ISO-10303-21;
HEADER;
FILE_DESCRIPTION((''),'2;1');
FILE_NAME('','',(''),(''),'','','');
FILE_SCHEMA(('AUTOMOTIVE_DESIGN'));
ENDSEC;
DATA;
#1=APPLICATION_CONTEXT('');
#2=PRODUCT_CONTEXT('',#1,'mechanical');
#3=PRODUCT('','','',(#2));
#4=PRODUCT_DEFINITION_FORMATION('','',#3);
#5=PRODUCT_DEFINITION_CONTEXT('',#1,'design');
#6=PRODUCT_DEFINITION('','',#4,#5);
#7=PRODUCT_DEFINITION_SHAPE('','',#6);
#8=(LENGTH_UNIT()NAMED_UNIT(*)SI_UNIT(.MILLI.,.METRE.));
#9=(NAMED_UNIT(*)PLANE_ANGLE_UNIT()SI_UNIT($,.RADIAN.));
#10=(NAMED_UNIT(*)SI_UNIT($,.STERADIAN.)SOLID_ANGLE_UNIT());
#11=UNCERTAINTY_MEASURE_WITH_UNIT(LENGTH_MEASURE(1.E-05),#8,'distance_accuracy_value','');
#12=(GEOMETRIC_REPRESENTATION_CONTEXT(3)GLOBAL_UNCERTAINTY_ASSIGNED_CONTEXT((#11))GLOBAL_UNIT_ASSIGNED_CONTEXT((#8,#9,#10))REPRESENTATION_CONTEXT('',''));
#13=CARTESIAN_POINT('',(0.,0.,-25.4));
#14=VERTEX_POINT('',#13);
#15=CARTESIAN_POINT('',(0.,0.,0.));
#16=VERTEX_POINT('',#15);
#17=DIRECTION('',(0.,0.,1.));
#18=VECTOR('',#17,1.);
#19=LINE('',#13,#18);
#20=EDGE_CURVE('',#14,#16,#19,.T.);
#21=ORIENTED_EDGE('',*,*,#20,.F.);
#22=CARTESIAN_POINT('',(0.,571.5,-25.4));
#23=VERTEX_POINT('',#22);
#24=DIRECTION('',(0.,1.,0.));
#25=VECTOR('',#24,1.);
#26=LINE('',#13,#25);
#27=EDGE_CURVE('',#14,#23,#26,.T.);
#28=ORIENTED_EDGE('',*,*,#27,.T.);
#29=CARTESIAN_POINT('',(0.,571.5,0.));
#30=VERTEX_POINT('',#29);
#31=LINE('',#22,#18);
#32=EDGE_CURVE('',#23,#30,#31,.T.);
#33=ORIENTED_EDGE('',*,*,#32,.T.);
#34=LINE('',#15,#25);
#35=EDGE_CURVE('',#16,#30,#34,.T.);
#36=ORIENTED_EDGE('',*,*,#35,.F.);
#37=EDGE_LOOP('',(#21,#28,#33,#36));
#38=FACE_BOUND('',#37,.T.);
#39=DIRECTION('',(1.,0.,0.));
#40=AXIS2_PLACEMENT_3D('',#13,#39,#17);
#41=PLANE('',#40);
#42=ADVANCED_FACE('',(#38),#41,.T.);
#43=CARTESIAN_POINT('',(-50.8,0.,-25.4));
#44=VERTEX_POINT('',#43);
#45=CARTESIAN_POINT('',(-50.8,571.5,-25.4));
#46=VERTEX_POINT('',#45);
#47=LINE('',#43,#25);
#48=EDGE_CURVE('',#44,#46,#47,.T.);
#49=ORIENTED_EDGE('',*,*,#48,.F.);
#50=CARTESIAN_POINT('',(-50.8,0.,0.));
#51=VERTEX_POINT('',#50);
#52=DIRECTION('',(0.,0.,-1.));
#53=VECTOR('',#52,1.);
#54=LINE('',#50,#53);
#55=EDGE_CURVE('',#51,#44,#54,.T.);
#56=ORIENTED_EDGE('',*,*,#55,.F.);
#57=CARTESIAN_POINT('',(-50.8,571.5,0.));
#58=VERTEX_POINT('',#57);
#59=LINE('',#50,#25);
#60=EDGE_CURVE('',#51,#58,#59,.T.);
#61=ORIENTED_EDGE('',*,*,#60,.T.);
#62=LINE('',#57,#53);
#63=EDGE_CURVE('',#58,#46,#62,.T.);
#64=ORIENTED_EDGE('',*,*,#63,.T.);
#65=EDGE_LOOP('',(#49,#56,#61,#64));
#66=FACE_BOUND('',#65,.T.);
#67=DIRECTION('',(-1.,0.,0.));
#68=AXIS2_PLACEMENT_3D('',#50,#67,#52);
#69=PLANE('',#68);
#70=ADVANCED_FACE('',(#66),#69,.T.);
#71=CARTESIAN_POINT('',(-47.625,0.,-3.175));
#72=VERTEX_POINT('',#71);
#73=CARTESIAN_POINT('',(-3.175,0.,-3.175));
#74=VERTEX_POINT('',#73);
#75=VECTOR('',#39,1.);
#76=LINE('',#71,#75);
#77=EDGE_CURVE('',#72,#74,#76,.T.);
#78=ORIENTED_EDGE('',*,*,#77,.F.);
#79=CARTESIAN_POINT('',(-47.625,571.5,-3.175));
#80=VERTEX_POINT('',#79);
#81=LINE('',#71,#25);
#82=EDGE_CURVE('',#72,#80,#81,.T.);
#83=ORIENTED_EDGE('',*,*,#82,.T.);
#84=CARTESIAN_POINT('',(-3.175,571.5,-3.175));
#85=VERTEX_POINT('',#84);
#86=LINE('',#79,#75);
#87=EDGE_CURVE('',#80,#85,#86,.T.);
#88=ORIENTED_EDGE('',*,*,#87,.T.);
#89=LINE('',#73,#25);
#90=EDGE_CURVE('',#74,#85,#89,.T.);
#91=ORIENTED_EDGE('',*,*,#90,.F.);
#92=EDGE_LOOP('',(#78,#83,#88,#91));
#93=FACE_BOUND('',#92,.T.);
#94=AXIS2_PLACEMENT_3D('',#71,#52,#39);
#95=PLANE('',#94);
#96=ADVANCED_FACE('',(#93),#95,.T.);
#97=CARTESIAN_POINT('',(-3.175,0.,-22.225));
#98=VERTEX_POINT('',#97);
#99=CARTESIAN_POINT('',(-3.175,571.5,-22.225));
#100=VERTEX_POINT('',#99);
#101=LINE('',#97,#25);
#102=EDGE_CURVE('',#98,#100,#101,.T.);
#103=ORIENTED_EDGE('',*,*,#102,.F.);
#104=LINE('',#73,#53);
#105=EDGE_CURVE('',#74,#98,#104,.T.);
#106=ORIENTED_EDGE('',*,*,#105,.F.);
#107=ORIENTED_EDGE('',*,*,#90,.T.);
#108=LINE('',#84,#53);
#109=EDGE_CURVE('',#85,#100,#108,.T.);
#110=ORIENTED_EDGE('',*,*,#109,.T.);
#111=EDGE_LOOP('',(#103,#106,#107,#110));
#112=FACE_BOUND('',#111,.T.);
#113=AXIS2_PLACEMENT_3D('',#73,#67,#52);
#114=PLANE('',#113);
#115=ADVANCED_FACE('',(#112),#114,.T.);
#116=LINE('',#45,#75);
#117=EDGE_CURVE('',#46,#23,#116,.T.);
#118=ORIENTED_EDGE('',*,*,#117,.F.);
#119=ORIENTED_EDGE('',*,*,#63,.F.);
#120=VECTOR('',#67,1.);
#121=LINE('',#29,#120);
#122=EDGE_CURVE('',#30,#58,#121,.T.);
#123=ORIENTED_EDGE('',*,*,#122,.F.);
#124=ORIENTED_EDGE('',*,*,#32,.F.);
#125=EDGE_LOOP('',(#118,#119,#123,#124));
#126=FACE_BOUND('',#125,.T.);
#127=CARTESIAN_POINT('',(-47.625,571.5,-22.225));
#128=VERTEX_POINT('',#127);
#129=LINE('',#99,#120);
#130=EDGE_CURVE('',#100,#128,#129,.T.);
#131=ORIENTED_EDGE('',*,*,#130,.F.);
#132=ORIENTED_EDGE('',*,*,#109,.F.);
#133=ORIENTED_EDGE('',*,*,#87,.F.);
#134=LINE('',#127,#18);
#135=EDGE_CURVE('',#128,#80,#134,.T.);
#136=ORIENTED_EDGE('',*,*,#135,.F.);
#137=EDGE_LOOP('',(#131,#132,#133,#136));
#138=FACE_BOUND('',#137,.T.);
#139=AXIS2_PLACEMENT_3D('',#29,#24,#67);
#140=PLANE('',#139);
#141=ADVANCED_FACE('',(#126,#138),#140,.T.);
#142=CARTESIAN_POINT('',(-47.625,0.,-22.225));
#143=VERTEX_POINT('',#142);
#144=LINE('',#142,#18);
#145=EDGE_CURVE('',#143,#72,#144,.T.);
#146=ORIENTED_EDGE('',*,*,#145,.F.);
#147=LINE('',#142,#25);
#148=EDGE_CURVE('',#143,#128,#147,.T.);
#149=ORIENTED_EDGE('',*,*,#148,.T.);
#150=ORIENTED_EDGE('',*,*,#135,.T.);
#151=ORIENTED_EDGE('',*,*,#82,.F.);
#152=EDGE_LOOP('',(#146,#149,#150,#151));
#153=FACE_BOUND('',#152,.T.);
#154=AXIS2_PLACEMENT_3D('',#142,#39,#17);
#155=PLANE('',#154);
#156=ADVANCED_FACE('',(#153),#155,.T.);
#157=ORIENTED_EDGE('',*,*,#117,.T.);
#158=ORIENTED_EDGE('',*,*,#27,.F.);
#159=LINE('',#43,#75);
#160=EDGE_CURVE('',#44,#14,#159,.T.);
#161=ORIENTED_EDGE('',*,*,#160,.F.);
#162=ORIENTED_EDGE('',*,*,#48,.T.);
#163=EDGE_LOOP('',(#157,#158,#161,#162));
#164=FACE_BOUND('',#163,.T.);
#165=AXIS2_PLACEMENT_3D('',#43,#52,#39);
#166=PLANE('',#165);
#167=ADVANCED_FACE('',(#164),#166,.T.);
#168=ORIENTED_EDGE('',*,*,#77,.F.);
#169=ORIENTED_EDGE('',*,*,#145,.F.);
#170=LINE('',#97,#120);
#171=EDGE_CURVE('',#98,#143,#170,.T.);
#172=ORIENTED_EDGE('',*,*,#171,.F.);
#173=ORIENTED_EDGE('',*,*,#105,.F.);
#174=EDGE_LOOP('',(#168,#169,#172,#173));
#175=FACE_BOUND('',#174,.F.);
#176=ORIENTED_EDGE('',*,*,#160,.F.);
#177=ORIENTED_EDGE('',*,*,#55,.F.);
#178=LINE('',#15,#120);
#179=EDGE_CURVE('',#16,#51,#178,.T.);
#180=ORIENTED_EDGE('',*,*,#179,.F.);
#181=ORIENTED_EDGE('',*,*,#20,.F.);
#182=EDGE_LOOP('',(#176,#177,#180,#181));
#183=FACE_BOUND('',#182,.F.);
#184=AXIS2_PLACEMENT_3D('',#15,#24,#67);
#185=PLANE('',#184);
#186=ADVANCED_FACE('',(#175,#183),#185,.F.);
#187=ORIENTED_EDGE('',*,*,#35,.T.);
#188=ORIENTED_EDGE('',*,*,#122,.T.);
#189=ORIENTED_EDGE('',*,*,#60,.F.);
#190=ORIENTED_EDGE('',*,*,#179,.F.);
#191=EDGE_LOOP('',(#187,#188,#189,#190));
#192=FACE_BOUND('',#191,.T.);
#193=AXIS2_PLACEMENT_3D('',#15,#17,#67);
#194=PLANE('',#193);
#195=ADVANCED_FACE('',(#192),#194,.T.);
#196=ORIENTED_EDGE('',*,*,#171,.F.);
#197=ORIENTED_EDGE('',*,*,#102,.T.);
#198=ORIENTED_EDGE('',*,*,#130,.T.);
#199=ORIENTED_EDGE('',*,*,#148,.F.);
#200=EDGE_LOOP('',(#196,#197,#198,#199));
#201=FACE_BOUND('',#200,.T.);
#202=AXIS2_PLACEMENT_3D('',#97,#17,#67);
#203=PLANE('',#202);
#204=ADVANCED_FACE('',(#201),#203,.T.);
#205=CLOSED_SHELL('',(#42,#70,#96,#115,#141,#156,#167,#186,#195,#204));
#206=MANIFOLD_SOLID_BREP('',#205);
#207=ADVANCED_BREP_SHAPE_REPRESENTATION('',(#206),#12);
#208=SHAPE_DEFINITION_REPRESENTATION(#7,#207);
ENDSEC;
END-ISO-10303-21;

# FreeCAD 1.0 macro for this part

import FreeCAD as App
import Part
import Sketcher
Q = App.Units.Quantity

doc = App.newDocument("Part")
params = doc.addObject("Spreadsheet::Sheet", "Params")
for row, (alias, value) in enumerate([
    ("sketch1_width", "2 in"),
    ("sketch1_height", "1 in"),
    ("pad1_length", "22.5 in"),
], start=1):
    params.set(f"A{row}", alias)
    params.set(f"B{row}", "=" + value)
    params.setAlias(f"B{row}", alias)

body = doc.addObject("PartDesign::Body", "Body")

sketch1 = body.newObject("Sketcher::SketchObject", "Sketch")
sketch1.AttachmentSupport = (doc.getObject("XZ_Plane"), [""])
sketch1.MapMode = "FlatFace"
sketch1.addGeometry([
    Part.LineSegment(App.Vector(-51, 0, 0), App.Vector(0, 0, 0)),
    Part.LineSegment(App.Vector(0, 0, 0), App.Vector(0, -25, 0)),
    Part.LineSegment(App.Vector(0, -25, 0), App.Vector(-51, -25, 0)),
    Part.LineSegment(App.Vector(-51, -25, 0), App.Vector(-51, 0, 0)),
    Part.LineSegment(App.Vector(-48, -3, 0), App.Vector(-48, -22, 0)),
    Part.LineSegment(App.Vector(-48, -22, 0), App.Vector(-3, -22, 0)),
    Part.LineSegment(App.Vector(-3, -22, 0), App.Vector(-3, -3, 0)),
    Part.LineSegment(App.Vector(-3, -3, 0), App.Vector(-48, -3, 0)),
], False)
sketch1.addConstraint([
    Sketcher.Constraint("Coincident", 0, 2, 1, 1),
    Sketcher.Constraint("Coincident", 1, 2, 2, 1),
    Sketcher.Constraint("Coincident", 2, 2, 3, 1),
    Sketcher.Constraint("Coincident", 3, 2, 0, 1),
    Sketcher.Constraint("Coincident", 4, 2, 5, 1),
    Sketcher.Constraint("Coincident", 5, 2, 6, 1),
    Sketcher.Constraint("Coincident", 6, 2, 7, 1),
    Sketcher.Constraint("Coincident", 7, 2, 4, 1),
    Sketcher.Constraint("Horizontal", 0),
    Sketcher.Constraint("Vertical", 1),
    Sketcher.Constraint("Horizontal", 2),
    Sketcher.Constraint("Vertical", 3),
    Sketcher.Constraint("Vertical", 4),
    Sketcher.Constraint("Horizontal", 5),
    Sketcher.Constraint("Vertical", 6),
    Sketcher.Constraint("Horizontal", 7),
    Sketcher.Constraint("Coincident", 0, 2, -1, 1),
    Sketcher.Constraint("DistanceX", 0, 1, 0, 2, Q("2 in")),
    Sketcher.Constraint("DistanceY", 1, 2, 1, 1, Q("1 in")),
    Sketcher.Constraint("DistanceX", 5, 2, -1, 1, Q("0.125 in")),
    Sketcher.Constraint("DistanceY", 6, 2, -1, 1, Q("0.125 in")),
    Sketcher.Constraint("DistanceX", 2, 2, 4, 2, Q("0.125 in")),
    Sketcher.Constraint("DistanceY", 2, 2, 4, 2, Q("0.125 in")),
])
sketch1.setExpression("Constraints[17]", "Params.sketch1_width")
sketch1.setExpression("Constraints[18]", "Params.sketch1_height")
pad1 = body.newObject("PartDesign::Pad", "Pad")
pad1.Profile = sketch1
pad1.setExpression("Length", "Params.pad1_length")
pad1.Reversed = True

doc.recompute()
